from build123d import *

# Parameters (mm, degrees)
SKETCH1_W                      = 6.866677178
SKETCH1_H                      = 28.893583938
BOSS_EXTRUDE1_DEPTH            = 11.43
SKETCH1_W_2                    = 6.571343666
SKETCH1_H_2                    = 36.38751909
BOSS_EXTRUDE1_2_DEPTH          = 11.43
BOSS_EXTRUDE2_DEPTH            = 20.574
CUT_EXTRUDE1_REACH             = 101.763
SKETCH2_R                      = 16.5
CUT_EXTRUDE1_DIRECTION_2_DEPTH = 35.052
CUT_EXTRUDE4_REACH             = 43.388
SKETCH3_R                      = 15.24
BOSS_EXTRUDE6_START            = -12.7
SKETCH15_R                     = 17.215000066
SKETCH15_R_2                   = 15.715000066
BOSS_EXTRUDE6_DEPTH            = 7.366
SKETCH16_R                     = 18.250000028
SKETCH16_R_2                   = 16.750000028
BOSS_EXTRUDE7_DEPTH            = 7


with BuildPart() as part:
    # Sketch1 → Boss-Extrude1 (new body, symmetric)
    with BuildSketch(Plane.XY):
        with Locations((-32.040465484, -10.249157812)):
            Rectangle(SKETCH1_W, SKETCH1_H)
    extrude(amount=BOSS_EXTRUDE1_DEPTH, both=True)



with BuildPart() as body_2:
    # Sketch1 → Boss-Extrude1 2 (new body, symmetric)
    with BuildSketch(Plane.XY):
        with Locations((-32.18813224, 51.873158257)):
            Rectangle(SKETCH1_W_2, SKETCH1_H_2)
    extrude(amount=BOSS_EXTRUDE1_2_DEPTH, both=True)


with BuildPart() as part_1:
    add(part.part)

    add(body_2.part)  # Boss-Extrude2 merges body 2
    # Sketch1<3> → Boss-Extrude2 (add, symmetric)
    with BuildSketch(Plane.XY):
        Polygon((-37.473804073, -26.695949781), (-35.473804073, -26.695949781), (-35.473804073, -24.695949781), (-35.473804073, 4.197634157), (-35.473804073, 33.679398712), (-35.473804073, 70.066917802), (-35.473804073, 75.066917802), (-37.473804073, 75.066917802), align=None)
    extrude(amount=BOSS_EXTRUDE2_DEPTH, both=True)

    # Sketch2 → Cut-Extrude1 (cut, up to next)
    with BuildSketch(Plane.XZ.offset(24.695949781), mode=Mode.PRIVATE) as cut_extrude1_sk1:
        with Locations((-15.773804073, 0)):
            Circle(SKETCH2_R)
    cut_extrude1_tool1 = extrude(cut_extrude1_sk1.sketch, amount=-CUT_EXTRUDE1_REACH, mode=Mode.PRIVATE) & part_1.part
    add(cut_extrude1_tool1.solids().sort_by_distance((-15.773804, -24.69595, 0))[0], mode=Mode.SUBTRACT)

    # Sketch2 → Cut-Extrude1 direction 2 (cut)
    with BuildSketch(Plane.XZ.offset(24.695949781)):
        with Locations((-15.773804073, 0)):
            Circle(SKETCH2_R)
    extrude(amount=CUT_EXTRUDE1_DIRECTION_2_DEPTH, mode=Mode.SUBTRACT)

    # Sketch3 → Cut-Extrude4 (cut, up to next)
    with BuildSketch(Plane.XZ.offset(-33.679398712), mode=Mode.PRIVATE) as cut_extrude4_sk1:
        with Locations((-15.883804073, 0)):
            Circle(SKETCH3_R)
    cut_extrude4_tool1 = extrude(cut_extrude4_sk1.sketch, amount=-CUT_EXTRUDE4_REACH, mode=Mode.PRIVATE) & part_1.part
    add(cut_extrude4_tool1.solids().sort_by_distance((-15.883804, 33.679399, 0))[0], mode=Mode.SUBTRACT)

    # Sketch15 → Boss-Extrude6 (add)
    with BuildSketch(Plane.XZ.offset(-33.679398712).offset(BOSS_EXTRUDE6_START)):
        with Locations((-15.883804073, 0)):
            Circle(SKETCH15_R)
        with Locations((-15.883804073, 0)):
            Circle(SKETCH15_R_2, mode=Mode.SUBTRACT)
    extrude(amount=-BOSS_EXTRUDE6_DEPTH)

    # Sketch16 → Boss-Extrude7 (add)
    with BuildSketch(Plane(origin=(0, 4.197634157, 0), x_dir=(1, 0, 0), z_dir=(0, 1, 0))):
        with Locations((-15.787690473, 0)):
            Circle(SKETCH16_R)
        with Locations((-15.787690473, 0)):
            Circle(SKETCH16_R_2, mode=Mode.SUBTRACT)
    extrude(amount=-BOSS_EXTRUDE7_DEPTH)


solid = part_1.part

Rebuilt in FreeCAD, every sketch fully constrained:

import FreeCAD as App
import Part
import Sketcher
Q = App.Units.Quantity

doc = App.newDocument("Part")
body = doc.addObject("PartDesign::Body", "Body")

sketch1 = body.newObject("Sketcher::SketchObject", "Sketch")
sketch1.AttachmentSupport = (doc.getObject("XY_Plane"), [""])
sketch1.MapMode = "FlatFace"
sketch1.addGeometry([
    Part.LineSegment(App.Vector(-35, 4, 0), App.Vector(-35, -25, 0)),
    Part.LineSegment(App.Vector(-35, -25, 0), App.Vector(-29, -25, 0)),
    Part.LineSegment(App.Vector(-29, -25, 0), App.Vector(-29, 4, 0)),
    Part.LineSegment(App.Vector(-29, 4, 0), App.Vector(-35, 4, 0)),
], False)
sketch1.addConstraint([
    Sketcher.Constraint("Coincident", 0, 2, 1, 1),
    Sketcher.Constraint("Coincident", 1, 2, 2, 1),
    Sketcher.Constraint("Coincident", 2, 2, 3, 1),
    Sketcher.Constraint("Coincident", 3, 2, 0, 1),
    Sketcher.Constraint("Vertical", 0),
    Sketcher.Constraint("Horizontal", 1),
    Sketcher.Constraint("Vertical", 2),
    Sketcher.Constraint("Horizontal", 3),
    Sketcher.Constraint("DistanceX", 1, 1, 1, 2, Q("6.866677 mm")),
    Sketcher.Constraint("DistanceY", 0, 2, 0, 1, Q("28.893584 mm")),
    Sketcher.Constraint("DistanceY", 0, 2, -1, 1, Q("24.69595 mm")),
    Sketcher.Constraint("DistanceX", 0, 2, -1, 1, Q("35.473804 mm")),
])
pad1 = body.newObject("PartDesign::Pad", "Pad")
pad1.Profile = sketch1
pad1.Length = 22.86
pad1.Midplane = True
body2 = doc.addObject("PartDesign::Body", "Body001")

sketch2 = body2.newObject("Sketcher::SketchObject", "Sketch001")
sketch2.AttachmentSupport = (doc.getObject("XY_Plane001"), [""])
sketch2.MapMode = "FlatFace"
sketch2.addGeometry([
    Part.LineSegment(App.Vector(-35, 70, 0), App.Vector(-35, 34, 0)),
    Part.LineSegment(App.Vector(-35, 34, 0), App.Vector(-29, 34, 0)),
    Part.LineSegment(App.Vector(-29, 34, 0), App.Vector(-29, 70, 0)),
    Part.LineSegment(App.Vector(-29, 70, 0), App.Vector(-35, 70, 0)),
], False)
sketch2.addConstraint([
    Sketcher.Constraint("Coincident", 0, 2, 1, 1),
    Sketcher.Constraint("Coincident", 1, 2, 2, 1),
    Sketcher.Constraint("Coincident", 2, 2, 3, 1),
    Sketcher.Constraint("Coincident", 3, 2, 0, 1),
    Sketcher.Constraint("Vertical", 0),
    Sketcher.Constraint("Horizontal", 1),
    Sketcher.Constraint("Vertical", 2),
    Sketcher.Constraint("Horizontal", 3),
    Sketcher.Constraint("DistanceY", 0, 2, 0, 1, Q("36.387519 mm")),
    Sketcher.Constraint("DistanceY", -1, 1, 0, 2, Q("33.679399 mm")),
    Sketcher.Constraint("DistanceX", 1, 1, 1, 2, Q("6.571344 mm")),
    Sketcher.Constraint("DistanceX", 1, 2, -1, 1, Q("28.90246 mm")),
])
pad2 = body2.newObject("PartDesign::Pad", "Pad001")
pad2.Profile = sketch2
pad2.Length = 22.86
pad2.Midplane = True
body.AllowCompound = True
doc.recompute()

boolean = body.newObject("PartDesign::Boolean", "Boolean")
boolean.Type = "Fuse"
boolean.addObjects([body2])

sketch3 = body.newObject("Sketcher::SketchObject", "Sketch002")
sketch3.AttachmentSupport = (doc.getObject("XY_Plane"), [""])
sketch3.MapMode = "FlatFace"
sketch3.addGeometry([
    Part.LineSegment(App.Vector(-37.5, -26.7, 0), App.Vector(-35.5, -26.7, 0)),
    Part.LineSegment(App.Vector(-35.5, -26.7, 0), App.Vector(-35.5, 75.1, 0)),
    Part.LineSegment(App.Vector(-35.5, 75.1, 0), App.Vector(-37.5, 75.1, 0)),
    Part.LineSegment(App.Vector(-37.5, 75.1, 0), App.Vector(-37.5, -26.7, 0)),
], False)
sketch3.addConstraint([
    Sketcher.Constraint("Coincident", 0, 2, 1, 1),
    Sketcher.Constraint("Coincident", 1, 2, 2, 1),
    Sketcher.Constraint("Coincident", 2, 2, 3, 1),
    Sketcher.Constraint("Coincident", 3, 2, 0, 1),
    Sketcher.Constraint("Horizontal", 0),
    Sketcher.Constraint("Vertical", 1),
    Sketcher.Constraint("Horizontal", 2),
    Sketcher.Constraint("Vertical", 3),
    Sketcher.Constraint("DistanceX", 0, 1, 0, 2, Q("2 mm")),
    Sketcher.Constraint("DistanceY", 1, 1, 1, 2, Q("101.762868 mm")),
    Sketcher.Constraint("DistanceY", 0, 2, -1, 1, Q("26.69595 mm")),
    Sketcher.Constraint("DistanceX", 0, 2, -1, 1, Q("35.473804 mm")),
])
pad3 = body.newObject("PartDesign::Pad", "Pad002")
pad3.Profile = sketch3
pad3.Length = 41.148
pad3.Midplane = True

sketch4 = body.newObject("Sketcher::SketchObject", "Sketch003")
sketch4.AttachmentSupport = (doc.getObject("XZ_Plane"), [""])
sketch4.MapMode = "FlatFace"
sketch4.AttachmentOffset = App.Placement(App.Vector(0, 0, 24.69595), App.Rotation())
sketch4.addGeometry(Part.Circle(App.Vector(-16, 0, 0), App.Vector(0, 0, 1), 16), False)
sketch4.addConstraint([
    Sketcher.Constraint("PointOnObject", 0, 3, -1),
    Sketcher.Constraint("Diameter", 0, Q("33 mm")),
    Sketcher.Constraint("DistanceX", 0, 3, -1, 1, Q("15.773804 mm")),
])
pocket1 = body.newObject("PartDesign::Pocket", "Pocket")
pocket1.Profile = sketch4
pocket1.Length = 28.893584

sketch5 = body.newObject("Sketcher::SketchObject", "Sketch004")
sketch5.AttachmentSupport = (doc.getObject("XZ_Plane"), [""])
sketch5.MapMode = "FlatFace"
sketch5.AttachmentOffset = App.Placement(App.Vector(0, 0, 24.69595), App.Rotation())
sketch5.addGeometry(Part.Circle(App.Vector(-16, 0, 0), App.Vector(0, 0, 1), 16), False)
sketch5.addConstraint([
    Sketcher.Constraint("PointOnObject", 0, 3, -1),
    Sketcher.Constraint("Diameter", 0, Q("33 mm")),
    Sketcher.Constraint("DistanceX", 0, 3, -1, 1, Q("15.773804 mm")),
])
pocket2 = body.newObject("PartDesign::Pocket", "Pocket001")
pocket2.Profile = sketch5
pocket2.Length = 35.052
pocket2.Reversed = True

sketch6 = body.newObject("Sketcher::SketchObject", "Sketch005")
sketch6.AttachmentSupport = (doc.getObject("XZ_Plane"), [""])
sketch6.MapMode = "FlatFace"
sketch6.AttachmentOffset = App.Placement(App.Vector(0, 0, -33.679399), App.Rotation())
sketch6.addGeometry(Part.Circle(App.Vector(-16, 0, 0), App.Vector(0, 0, 1), 15), False)
sketch6.addConstraint([
    Sketcher.Constraint("PointOnObject", 0, 3, -1),
    Sketcher.Constraint("Diameter", 0, Q("30.48 mm")),
    Sketcher.Constraint("DistanceX", 0, 3, -1, 1, Q("15.883804 mm")),
])
pocket3 = body.newObject("PartDesign::Pocket", "Pocket002")
pocket3.Profile = sketch6
pocket3.Length = 36.387519

sketch7 = body.newObject("Sketcher::SketchObject", "Sketch006")
sketch7.AttachmentSupport = (doc.getObject("XZ_Plane"), [""])
sketch7.MapMode = "FlatFace"
sketch7.AttachmentOffset = App.Placement(App.Vector(0, 0, -46.379399), App.Rotation())
sketch7.addGeometry([
    Part.Circle(App.Vector(-16, 0, 0), App.Vector(0, 0, 1), 17),
    Part.Circle(App.Vector(-16, 0, 0), App.Vector(0, 0, 1), 16),
], False)
sketch7.addConstraint([
    Sketcher.Constraint("Coincident", 1, 3, 0, 3),
    Sketcher.Constraint("PointOnObject", 0, 3, -1),
    Sketcher.Constraint("Diameter", 0, Q("34.43 mm")),
    Sketcher.Constraint("Diameter", 1, Q("31.43 mm")),
    Sketcher.Constraint("DistanceX", 0, 3, -1, 1, Q("15.883804 mm")),
])
pad4 = body.newObject("PartDesign::Pad", "Pad003")
pad4.Profile = sketch7
pad4.Length = 7.366
pad4.Reversed = True

sketch8 = body.newObject("Sketcher::SketchObject", "Sketch007")
sketch8.AttachmentSupport = (doc.getObject("XZ_Plane"), [""])
sketch8.MapMode = "FlatFace"
sketch8.AttachmentOffset = App.Placement(App.Vector(0, 0, -4.197634), App.Rotation())
sketch8.addGeometry([
    Part.Circle(App.Vector(-16, 0, 0), App.Vector(0, 0, 1), 18),
    Part.Circle(App.Vector(-16, 0, 0), App.Vector(0, 0, 1), 17),
], False)
sketch8.addConstraint([
    Sketcher.Constraint("Coincident", 1, 3, 0, 3),
    Sketcher.Constraint("PointOnObject", 0, 3, -1),
    Sketcher.Constraint("Diameter", 0, Q("36.5 mm")),
    Sketcher.Constraint("Diameter", 1, Q("33.5 mm")),
    Sketcher.Constraint("DistanceX", 0, 3, -1, 1, Q("15.78769 mm")),
])
pad5 = body.newObject("PartDesign::Pad", "Pad004")
pad5.Profile = sketch8
pad5.Length = 7

doc.recompute()
